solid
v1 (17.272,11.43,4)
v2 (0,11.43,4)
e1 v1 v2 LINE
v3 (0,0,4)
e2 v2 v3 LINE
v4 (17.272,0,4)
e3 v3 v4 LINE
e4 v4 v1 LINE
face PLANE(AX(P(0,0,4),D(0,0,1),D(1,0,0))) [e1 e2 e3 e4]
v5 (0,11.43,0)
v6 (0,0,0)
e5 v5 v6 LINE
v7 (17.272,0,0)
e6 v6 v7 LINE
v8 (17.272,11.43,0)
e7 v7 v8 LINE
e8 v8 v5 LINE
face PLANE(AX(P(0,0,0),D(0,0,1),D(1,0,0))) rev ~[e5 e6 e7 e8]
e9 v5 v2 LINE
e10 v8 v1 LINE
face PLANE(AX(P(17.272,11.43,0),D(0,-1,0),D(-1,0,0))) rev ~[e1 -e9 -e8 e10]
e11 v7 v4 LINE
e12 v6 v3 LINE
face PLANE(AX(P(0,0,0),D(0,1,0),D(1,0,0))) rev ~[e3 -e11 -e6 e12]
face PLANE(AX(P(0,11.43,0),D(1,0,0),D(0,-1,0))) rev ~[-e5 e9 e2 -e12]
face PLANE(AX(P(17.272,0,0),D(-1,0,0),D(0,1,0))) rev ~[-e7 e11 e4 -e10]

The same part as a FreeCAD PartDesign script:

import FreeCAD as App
import Part
import Sketcher
Q = App.Units.Quantity


def add_polygon(sketch, points):
    """Adds a closed chain of lines whose ends are joined by coincident constraints."""
    first, n = sketch.GeometryCount, len(points)
    for a, b in zip(points, points[1:] + points[:1]):
        sketch.addGeometry(Part.LineSegment(App.Vector(*a, 0), App.Vector(*b, 0)), False)
    for i in range(n):
        sketch.addConstraint(Sketcher.Constraint("Coincident", first + i, 2, first + (i + 1) % n, 1))

doc = App.newDocument("Part")
body = doc.addObject("PartDesign::Body", "Body")

# Sketch on XY plane
sketch1 = doc.addObject("Sketcher::SketchObject", "Sketch")
body.addObject(sketch1)
sketch1.AttachmentSupport = (doc.XY_Plane, [""])
sketch1.MapMode = "FlatFace"
add_polygon(sketch1, [(0, 11), (0, 0), (17, 0), (17, 11)])  # lines 0-3
sketch1.addConstraint([
    Sketcher.Constraint("Vertical", 0),
    Sketcher.Constraint("Horizontal", 1),
    Sketcher.Constraint("Vertical", 2),
    Sketcher.Constraint("Horizontal", 3),
    Sketcher.Constraint("Coincident", 0, 2, -1, 1),
    Sketcher.Constraint("DistanceX", 1, 1, 1, 2, Q("0.68 in")),
    Sketcher.Constraint("DistanceY", 0, 2, 0, 1, Q("0.45 in")),
])
pad1 = doc.addObject("PartDesign::Pad", "Pad")
body.addObject(pad1)
pad1.Profile = sketch1
pad1.Length = 4

doc.recompute()
